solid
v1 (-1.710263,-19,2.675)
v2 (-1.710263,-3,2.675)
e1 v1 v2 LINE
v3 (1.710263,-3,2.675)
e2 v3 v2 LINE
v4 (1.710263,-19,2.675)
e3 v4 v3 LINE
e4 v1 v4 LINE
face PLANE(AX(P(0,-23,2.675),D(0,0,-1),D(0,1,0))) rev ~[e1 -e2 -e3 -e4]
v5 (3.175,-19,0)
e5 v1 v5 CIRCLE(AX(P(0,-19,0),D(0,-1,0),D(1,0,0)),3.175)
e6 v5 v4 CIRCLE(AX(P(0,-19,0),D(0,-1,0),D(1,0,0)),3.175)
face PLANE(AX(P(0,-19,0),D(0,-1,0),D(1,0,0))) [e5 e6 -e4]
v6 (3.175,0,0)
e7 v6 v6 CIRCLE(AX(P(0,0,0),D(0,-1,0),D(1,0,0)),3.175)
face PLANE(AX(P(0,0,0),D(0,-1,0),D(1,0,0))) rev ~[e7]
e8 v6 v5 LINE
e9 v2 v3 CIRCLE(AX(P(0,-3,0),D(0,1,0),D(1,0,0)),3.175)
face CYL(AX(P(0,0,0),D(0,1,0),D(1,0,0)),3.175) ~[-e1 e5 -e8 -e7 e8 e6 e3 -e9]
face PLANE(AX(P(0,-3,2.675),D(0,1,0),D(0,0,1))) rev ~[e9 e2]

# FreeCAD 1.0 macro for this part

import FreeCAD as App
import Part
import Sketcher
Q = App.Units.Quantity

doc = App.newDocument("Part")
params = doc.addObject("Spreadsheet::Sheet", "Params")
for row, (alias, value) in enumerate([
    ("sketch1_diameter", "6.35 mm"),
    ("pad1_length", "19 mm"),
    ("sketch2_width", "20 mm"),
    ("sketch2_height", "5 mm"),
    ("pocket1_length", "25 mm"),
], start=1):
    params.set(f"A{row}", alias)
    params.set(f"B{row}", "=" + value)
    params.setAlias(f"B{row}", alias)

body = doc.addObject("PartDesign::Body", "Body")

sketch1 = body.newObject("Sketcher::SketchObject", "Sketch")
sketch1.AttachmentSupport = (doc.getObject("XZ_Plane"), [""])
sketch1.MapMode = "FlatFace"
sketch1.addGeometry(Part.Circle(App.Vector(0, 0, 0), App.Vector(0, 0, 1), 3.2), False)
sketch1.addConstraint(Sketcher.Constraint("Coincident", 0, 3, -1, 1))
sketch1.addConstraint(Sketcher.Constraint("Diameter", 0, Q("6.35 mm")))
sketch1.setExpression("Constraints[1]", "Params.sketch1_diameter")
pad1 = body.newObject("PartDesign::Pad", "Pad")
pad1.Profile = sketch1
pad1.setExpression("Length", "Params.pad1_length")

sketch2 = body.newObject("Sketcher::SketchObject", "Sketch001")
sketch2.AttachmentSupport = (doc.getObject("YZ_Plane"), [""])
sketch2.MapMode = "FlatFace"
sketch2.addGeometry(Part.LineSegment(App.Vector(-3, 8, 0), App.Vector(-23, 3, 0)), False)
sketch2.addGeometry(Part.LineSegment(App.Vector(-23, 3, 0), App.Vector(-3, 3, 0)), False)
sketch2.addGeometry(Part.LineSegment(App.Vector(-3, 3, 0), App.Vector(-3, 8, 0)), False)
sketch2.addConstraint(Sketcher.Constraint("Coincident", 0, 2, 1, 1))
sketch2.addConstraint(Sketcher.Constraint("Coincident", 1, 2, 2, 1))
sketch2.addConstraint(Sketcher.Constraint("Coincident", 2, 2, 0, 1))
sketch2.addConstraint(Sketcher.Constraint("Horizontal", 1))
sketch2.addConstraint(Sketcher.Constraint("Vertical", 2))
sketch2.addConstraint(Sketcher.Constraint("DistanceX", 1, 1, 1, 2, Q("20 mm")))
sketch2.addConstraint(Sketcher.Constraint("DistanceY", 2, 1, 2, 2, Q("5 mm")))
sketch2.addConstraint(Sketcher.Constraint("DistanceX", 0, 2, -1, 1, Q("23 mm")))
sketch2.addConstraint(Sketcher.Constraint("DistanceY", -1, 1, 0, 2, Q("2.675 mm")))
sketch2.setExpression("Constraints[5]", "Params.sketch2_width")
sketch2.setExpression("Constraints[6]", "Params.sketch2_height")
pocket1 = body.newObject("PartDesign::Pocket", "Pocket")
pocket1.Profile = sketch2
pocket1.setExpression("Length", "Params.pocket1_length")
pocket1.Midplane = True

doc.recompute()
